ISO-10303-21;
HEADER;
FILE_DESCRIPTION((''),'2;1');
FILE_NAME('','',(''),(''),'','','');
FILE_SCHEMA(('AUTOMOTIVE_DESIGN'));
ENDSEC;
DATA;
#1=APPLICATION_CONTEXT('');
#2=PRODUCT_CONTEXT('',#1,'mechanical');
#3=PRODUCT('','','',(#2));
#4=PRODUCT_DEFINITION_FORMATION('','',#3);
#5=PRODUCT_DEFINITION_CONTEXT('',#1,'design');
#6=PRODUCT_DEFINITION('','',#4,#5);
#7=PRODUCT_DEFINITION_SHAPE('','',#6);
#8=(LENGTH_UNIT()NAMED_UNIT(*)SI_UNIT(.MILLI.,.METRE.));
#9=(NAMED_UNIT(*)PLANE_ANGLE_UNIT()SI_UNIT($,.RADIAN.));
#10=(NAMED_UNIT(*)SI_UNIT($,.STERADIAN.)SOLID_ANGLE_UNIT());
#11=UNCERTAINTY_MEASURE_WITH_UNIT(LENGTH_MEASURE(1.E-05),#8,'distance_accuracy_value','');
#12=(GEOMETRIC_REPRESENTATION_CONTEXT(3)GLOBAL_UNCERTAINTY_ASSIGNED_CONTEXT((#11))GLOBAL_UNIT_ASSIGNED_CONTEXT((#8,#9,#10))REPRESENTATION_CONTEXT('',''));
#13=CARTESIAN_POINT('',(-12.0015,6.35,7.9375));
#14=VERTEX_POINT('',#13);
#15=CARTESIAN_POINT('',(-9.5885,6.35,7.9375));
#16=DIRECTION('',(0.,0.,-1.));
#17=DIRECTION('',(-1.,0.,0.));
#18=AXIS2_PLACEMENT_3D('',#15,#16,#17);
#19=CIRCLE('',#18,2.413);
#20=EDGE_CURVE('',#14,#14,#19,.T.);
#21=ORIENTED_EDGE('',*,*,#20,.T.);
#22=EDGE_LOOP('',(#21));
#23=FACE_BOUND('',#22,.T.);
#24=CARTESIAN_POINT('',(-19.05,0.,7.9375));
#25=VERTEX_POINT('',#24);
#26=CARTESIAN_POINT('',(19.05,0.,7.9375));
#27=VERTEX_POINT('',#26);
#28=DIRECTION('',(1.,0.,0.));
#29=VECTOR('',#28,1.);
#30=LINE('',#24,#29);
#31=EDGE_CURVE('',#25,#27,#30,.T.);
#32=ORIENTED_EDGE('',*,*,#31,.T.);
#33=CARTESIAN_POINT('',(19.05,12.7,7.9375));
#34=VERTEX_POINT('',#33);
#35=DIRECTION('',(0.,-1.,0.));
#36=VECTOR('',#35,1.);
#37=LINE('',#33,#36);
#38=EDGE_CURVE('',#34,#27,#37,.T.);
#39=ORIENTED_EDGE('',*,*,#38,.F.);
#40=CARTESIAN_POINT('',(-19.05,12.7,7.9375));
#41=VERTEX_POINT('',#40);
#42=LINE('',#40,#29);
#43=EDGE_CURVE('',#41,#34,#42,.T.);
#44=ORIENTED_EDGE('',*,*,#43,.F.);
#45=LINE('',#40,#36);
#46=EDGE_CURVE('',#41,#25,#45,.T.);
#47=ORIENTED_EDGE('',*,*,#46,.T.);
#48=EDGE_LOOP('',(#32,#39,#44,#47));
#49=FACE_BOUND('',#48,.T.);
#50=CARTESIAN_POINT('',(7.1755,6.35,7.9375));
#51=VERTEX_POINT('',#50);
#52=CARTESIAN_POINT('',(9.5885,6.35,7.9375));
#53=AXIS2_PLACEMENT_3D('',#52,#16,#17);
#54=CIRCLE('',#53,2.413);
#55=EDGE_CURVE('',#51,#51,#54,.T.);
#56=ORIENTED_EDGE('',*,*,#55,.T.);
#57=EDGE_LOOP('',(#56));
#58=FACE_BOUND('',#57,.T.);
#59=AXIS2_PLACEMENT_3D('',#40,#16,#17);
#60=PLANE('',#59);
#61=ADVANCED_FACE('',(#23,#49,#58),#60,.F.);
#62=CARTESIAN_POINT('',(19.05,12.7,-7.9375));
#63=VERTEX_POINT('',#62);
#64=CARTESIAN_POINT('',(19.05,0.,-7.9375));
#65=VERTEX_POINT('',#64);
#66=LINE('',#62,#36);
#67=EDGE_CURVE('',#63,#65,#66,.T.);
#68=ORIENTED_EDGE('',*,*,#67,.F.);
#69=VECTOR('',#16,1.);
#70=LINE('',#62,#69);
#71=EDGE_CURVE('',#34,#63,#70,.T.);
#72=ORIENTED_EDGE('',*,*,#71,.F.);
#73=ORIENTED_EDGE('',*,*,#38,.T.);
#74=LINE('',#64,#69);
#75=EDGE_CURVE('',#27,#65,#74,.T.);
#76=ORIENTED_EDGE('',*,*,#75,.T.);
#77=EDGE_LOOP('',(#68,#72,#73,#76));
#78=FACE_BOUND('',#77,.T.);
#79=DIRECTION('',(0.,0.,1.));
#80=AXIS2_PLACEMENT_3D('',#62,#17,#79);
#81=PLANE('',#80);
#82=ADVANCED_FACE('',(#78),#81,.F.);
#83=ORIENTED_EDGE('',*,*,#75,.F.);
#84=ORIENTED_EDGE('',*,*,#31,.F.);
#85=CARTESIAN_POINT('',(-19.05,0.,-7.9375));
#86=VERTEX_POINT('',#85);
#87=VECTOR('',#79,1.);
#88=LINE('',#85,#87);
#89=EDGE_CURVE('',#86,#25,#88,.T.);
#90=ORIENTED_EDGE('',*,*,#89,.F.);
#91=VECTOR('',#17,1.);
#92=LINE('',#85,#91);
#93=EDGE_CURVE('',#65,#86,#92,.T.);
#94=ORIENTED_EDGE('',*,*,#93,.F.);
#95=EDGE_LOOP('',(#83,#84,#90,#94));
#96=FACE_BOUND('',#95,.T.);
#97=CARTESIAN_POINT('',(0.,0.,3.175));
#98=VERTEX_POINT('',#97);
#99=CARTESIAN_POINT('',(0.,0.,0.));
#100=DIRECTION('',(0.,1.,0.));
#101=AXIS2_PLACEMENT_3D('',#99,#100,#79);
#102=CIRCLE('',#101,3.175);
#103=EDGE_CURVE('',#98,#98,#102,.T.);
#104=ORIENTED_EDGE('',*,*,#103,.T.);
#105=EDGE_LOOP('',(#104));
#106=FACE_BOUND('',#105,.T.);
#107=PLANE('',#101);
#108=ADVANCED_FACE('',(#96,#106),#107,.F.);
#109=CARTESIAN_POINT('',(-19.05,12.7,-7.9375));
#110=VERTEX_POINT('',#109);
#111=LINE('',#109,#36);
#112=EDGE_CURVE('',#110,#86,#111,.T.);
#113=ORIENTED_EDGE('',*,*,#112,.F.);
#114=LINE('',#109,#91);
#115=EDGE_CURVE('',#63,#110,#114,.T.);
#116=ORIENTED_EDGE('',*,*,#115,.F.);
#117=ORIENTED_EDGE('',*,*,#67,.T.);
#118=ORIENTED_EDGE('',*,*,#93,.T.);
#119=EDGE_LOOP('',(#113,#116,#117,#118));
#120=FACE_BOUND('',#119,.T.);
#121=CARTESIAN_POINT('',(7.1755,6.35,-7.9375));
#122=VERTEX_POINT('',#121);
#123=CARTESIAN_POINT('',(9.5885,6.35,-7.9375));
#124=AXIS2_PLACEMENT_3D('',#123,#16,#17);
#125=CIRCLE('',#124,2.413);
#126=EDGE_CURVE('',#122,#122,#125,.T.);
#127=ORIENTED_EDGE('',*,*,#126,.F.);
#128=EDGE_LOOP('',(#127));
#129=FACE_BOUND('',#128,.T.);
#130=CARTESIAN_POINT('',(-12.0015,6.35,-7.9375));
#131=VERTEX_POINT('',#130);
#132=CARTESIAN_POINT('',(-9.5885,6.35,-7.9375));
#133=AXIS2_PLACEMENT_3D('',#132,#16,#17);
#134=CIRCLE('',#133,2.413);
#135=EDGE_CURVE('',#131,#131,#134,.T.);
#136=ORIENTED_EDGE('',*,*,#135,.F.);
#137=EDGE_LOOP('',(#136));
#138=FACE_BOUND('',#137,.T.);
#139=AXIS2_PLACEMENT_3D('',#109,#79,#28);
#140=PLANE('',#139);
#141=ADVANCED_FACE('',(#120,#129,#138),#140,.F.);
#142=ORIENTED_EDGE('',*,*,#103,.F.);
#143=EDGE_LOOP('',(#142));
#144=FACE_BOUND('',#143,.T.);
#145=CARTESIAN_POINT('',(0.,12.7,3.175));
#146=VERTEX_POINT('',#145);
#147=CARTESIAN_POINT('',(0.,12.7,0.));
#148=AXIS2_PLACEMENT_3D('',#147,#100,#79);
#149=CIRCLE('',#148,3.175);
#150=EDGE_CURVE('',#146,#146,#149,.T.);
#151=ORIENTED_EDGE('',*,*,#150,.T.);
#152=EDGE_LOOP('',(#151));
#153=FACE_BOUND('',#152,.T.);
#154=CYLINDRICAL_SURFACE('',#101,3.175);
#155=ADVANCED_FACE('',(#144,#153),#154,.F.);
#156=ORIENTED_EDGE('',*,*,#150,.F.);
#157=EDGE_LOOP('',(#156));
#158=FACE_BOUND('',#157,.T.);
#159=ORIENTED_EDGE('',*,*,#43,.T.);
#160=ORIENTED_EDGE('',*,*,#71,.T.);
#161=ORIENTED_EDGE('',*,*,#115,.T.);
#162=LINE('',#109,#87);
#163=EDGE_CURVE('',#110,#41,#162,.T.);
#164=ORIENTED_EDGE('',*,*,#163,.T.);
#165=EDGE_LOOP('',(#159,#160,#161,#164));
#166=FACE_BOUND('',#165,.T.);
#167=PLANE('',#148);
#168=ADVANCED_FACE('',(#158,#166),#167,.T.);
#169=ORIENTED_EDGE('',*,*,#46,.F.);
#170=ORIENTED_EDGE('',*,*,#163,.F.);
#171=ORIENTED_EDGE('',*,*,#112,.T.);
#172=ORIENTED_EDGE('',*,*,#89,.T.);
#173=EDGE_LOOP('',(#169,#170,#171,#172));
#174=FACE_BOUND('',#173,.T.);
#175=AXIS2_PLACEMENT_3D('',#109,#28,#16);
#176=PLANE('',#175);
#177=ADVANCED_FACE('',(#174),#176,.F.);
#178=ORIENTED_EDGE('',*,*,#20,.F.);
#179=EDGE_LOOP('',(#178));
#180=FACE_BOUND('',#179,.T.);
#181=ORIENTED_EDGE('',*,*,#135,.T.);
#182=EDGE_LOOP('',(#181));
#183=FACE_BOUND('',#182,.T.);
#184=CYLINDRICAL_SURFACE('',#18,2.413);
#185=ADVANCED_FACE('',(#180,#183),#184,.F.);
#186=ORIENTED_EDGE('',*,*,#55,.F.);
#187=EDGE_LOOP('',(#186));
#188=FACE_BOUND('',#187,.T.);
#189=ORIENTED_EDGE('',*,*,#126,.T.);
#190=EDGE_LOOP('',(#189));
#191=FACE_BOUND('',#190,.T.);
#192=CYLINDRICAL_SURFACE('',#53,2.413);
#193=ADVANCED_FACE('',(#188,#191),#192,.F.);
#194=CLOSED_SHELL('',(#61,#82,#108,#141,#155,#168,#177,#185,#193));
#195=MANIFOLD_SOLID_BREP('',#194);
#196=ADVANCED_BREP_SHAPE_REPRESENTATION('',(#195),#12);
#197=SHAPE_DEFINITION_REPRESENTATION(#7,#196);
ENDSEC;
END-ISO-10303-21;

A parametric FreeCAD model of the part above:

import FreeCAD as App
import Part
import Sketcher

V = App.Vector
Q = App.Units.Quantity


def add_polygon(sketch, points):
    """Adds a closed chain of lines whose ends are joined by coincident constraints."""
    first, n = sketch.GeometryCount, len(points)
    for a, b in zip(points, points[1:] + points[:1]):
        sketch.addGeometry(Part.LineSegment(App.Vector(*a, 0), App.Vector(*b, 0)), False)
    for i in range(n):
        sketch.addConstraint(Sketcher.Constraint("Coincident", first + i, 2, first + (i + 1) % n, 1))

doc = App.newDocument("Part")
body = doc.addObject("PartDesign::Body", "Body")

# Sketch on XZ plane
sketch1 = body.newObject("Sketcher::SketchObject", "Sketch")
sketch1.AttachmentSupport = (doc.getObject("XZ_Plane"), [""])
sketch1.MapMode = "FlatFace"
add_polygon(sketch1, [(-19, -8), (-19, 8), (19, 8), (19, -8)])  # lines 0-3
sketch1.addConstraint([
    Sketcher.Constraint("Vertical", 0),
    Sketcher.Constraint("Horizontal", 1),
    Sketcher.Constraint("Vertical", 2),
    Sketcher.Constraint("Horizontal", 3),
    Sketcher.Constraint("Symmetric", 0, 2, 2, 2, -1, 1),
    Sketcher.Constraint("DistanceX", 1, 1, 1, 2, Q("1.5 in")),
    Sketcher.Constraint("DistanceY", 0, 1, 0, 2, Q("0.625 in")),
])
pad1 = body.newObject("PartDesign::Pad", "Pad")
pad1.Profile = sketch1
pad1.Length = Q("0.5 in")
pad1.Reversed = True

# Sketch on XY plane
sketch2 = body.newObject("Sketcher::SketchObject", "Sketch001")
sketch2.AttachmentSupport = (doc.getObject("XY_Plane"), [""])
sketch2.MapMode = "FlatFace"
sketch2.AttachmentOffset = App.Placement(V(0, 0, -0.3125 * 25.4), App.Rotation())
sketch2.addGeometry([
    Part.Circle(V(9.6, 6.3, 0), V(0, 0, 1), 2.4),
    Part.Circle(V(-9.6, 6.3, 0), V(0, 0, 1), 2.4),
], False)
sketch2.addConstraint([
    Sketcher.Constraint("Equal", 0, 1),
    Sketcher.Constraint("Symmetric", 0, 3, 1, 3, -2),
    Sketcher.Constraint("Diameter", 0, Q("0.19 in")),
    Sketcher.Constraint("DistanceY", -1, 1, 0, 3, Q("0.25 in")),
    Sketcher.Constraint("DistanceX", 1, 3, 0, 3, Q("0.755 in")),
])
pocket1 = body.newObject("PartDesign::Pocket", "Pocket")
pocket1.Profile = sketch2
pocket1.Type = "ThroughAll"
pocket1.Reversed = True

# Sketch on XZ plane
sketch3 = body.newObject("Sketcher::SketchObject", "Sketch002")
sketch3.AttachmentSupport = (doc.getObject("XZ_Plane"), [""])
sketch3.MapMode = "FlatFace"
sketch3.AttachmentOffset = App.Placement(V(0, 0, -0.5 * 25.4), App.Rotation())
sketch3.addGeometry(Part.Circle(V(0, 0, 0), V(0, 0, 1), 3.2), False)
sketch3.addConstraint([
    Sketcher.Constraint("Coincident", 0, 3, -1, 1),
    Sketcher.Constraint("Diameter", 0, Q("0.25 in")),
])
pocket2 = body.newObject("PartDesign::Pocket", "Pocket001")
pocket2.Profile = sketch3
pocket2.Type = "ThroughAll"
pocket2.Reversed = True

doc.recompute()
